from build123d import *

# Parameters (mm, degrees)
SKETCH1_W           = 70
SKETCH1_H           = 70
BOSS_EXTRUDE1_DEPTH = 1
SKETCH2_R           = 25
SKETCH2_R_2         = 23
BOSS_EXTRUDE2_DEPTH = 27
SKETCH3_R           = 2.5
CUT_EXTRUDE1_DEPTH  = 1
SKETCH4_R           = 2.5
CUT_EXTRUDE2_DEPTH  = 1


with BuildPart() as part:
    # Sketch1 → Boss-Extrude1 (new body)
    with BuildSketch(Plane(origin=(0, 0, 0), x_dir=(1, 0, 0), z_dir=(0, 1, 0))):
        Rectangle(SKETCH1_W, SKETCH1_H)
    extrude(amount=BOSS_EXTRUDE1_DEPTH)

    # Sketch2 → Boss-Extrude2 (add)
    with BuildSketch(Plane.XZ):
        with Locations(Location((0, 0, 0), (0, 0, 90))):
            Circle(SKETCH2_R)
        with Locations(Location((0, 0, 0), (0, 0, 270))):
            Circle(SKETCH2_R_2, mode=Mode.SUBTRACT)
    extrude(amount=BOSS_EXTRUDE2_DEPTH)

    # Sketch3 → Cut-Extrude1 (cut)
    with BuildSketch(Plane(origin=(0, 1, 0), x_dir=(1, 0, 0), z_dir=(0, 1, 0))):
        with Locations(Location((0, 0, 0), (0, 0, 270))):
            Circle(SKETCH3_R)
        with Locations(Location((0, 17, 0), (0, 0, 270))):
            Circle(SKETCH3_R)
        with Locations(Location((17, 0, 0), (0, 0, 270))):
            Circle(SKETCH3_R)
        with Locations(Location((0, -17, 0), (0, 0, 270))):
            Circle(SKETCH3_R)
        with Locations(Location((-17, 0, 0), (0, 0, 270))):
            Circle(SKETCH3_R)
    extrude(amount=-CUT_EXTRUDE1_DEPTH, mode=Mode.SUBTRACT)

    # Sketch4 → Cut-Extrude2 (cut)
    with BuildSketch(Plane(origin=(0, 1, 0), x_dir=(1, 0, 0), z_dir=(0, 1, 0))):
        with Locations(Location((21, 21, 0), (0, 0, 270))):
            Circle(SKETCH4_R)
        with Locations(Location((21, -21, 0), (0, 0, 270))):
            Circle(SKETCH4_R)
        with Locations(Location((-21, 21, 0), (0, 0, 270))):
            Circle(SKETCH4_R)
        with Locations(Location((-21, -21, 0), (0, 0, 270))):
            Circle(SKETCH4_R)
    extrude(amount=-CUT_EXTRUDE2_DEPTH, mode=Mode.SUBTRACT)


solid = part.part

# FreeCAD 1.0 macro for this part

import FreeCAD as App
import Part
import Sketcher
from FreeCAD import Vector
Q = App.Units.Quantity

doc = App.newDocument("Part")
body = doc.addObject("PartDesign::Body", "Body")

# Sketch on XZ plane
sketch1 = doc.addObject("Sketcher::SketchObject", "Sketch")
body.addObject(sketch1)
sketch1.AttachmentSupport = (doc.XZ_Plane, [""])
sketch1.MapMode = "FlatFace"
sketch1.addGeometry([
    Part.LineSegment(Vector(-35, -35, 0), Vector(-35, 35, 0)),
    Part.LineSegment(Vector(-35, 35, 0), Vector(35, 35, 0)),
    Part.LineSegment(Vector(35, 35, 0), Vector(35, -35, 0)),
    Part.LineSegment(Vector(35, -35, 0), Vector(-35, -35, 0)),
], False)
sketch1.addConstraint([
    Sketcher.Constraint("Coincident", 0, 2, 1, 1),
    Sketcher.Constraint("Coincident", 1, 2, 2, 1),
    Sketcher.Constraint("Coincident", 2, 2, 3, 1),
    Sketcher.Constraint("Coincident", 3, 2, 0, 1),
    Sketcher.Constraint("Vertical", 0),
    Sketcher.Constraint("Horizontal", 1),
    Sketcher.Constraint("Vertical", 2),
    Sketcher.Constraint("Horizontal", 3),
    Sketcher.Constraint("Symmetric", 0, 2, 2, 2, -1, 1),
    Sketcher.Constraint("Equal", 3, 0),
    Sketcher.Constraint("DistanceX", 1, 1, 1, 2, Q("70 mm")),
])
pad1 = doc.addObject("PartDesign::Pad", "Pad")
body.addObject(pad1)
pad1.Profile = sketch1
pad1.Length = 1
pad1.Reversed = True

# Sketch on XZ plane
sketch2 = doc.addObject("Sketcher::SketchObject", "Sketch001")
body.addObject(sketch2)
sketch2.AttachmentSupport = (doc.XZ_Plane, [""])
sketch2.MapMode = "FlatFace"
sketch2.addGeometry([
    Part.Circle(Vector(0, 0, 0), Vector(0, 0, 1), 25),
    Part.Circle(Vector(0, 0, 0), Vector(0, 0, 1), 23),
], False)
sketch2.addConstraint([
    Sketcher.Constraint("Coincident", 0, 3, -1, 1),
    Sketcher.Constraint("Coincident", 1, 3, -1, 1),
    Sketcher.Constraint("Diameter", 0, Q("50 mm")),
    Sketcher.Constraint("Diameter", 1, Q("46 mm")),
])
pad2 = doc.addObject("PartDesign::Pad", "Pad001")
body.addObject(pad2)
pad2.Profile = sketch2
pad2.Length = 27

# Sketch on XZ plane
sketch3 = doc.addObject("Sketcher::SketchObject", "Sketch002")
body.addObject(sketch3)
sketch3.AttachmentSupport = (doc.XZ_Plane, [""])
sketch3.MapMode = "FlatFace"
sketch3.AttachmentOffset = App.Placement(Vector(0, 0, -1), App.Rotation())
sketch3.addGeometry([
    Part.Circle(Vector(0, 0, 0), Vector(0, 0, 1), 2.5),  # 0
    Part.Circle(Vector(0, -17, 0), Vector(0, 0, 1), 2.5),  # 1
    Part.Circle(Vector(17, 0, 0), Vector(0, 0, 1), 2.5),  # 2
    Part.Circle(Vector(0, 17, 0), Vector(0, 0, 1), 2.5),  # 3
    Part.Circle(Vector(-17, 0, 0), Vector(0, 0, 1), 2.5),  # 4
], False)
sketch3.addConstraint([
    Sketcher.Constraint("Coincident", 0, 3, -1, 1),
    Sketcher.Constraint("Equal", 0, 1),
    Sketcher.Constraint("Equal", 1, 2),
    Sketcher.Constraint("Equal", 2, 3),
    Sketcher.Constraint("Equal", 3, 4),
    Sketcher.Constraint("Symmetric", 1, 3, 3, 3, -1, 1),
    Sketcher.Constraint("Symmetric", 2, 3, 4, 3, -1, 1),
    Sketcher.Constraint("PointOnObject", 1, 3, -2),
    Sketcher.Constraint("PointOnObject", 2, 3, -1),
    Sketcher.Constraint("Diameter", 0, Q("5 mm")),
    Sketcher.Constraint("DistanceY", 1, 3, -1, 1, Q("17 mm")),
    Sketcher.Constraint("DistanceX", -1, 1, 2, 3, Q("17 mm")),
])
pocket1 = doc.addObject("PartDesign::Pocket", "Pocket")
body.addObject(pocket1)
pocket1.Profile = sketch3
pocket1.Length = 1
pocket1.Reversed = True

# Sketch on XZ plane
sketch4 = doc.addObject("Sketcher::SketchObject", "Sketch003")
body.addObject(sketch4)
sketch4.AttachmentSupport = (doc.XZ_Plane, [""])
sketch4.MapMode = "FlatFace"
sketch4.AttachmentOffset = App.Placement(Vector(0, 0, -1), App.Rotation())
sketch4.addGeometry([
    Part.Circle(Vector(21, -21, 0), Vector(0, 0, 1), 2.5),
    Part.Circle(Vector(21, 21, 0), Vector(0, 0, 1), 2.5),
    Part.Circle(Vector(-21, -21, 0), Vector(0, 0, 1), 2.5),
    Part.Circle(Vector(-21, 21, 0), Vector(0, 0, 1), 2.5),
], False)
sketch4.addConstraint([
    Sketcher.Constraint("Equal", 0, 1),
    Sketcher.Constraint("Equal", 1, 2),
    Sketcher.Constraint("Equal", 2, 3),
    Sketcher.Constraint("Symmetric", 1, 3, 2, 3, -1, 1),
    Sketcher.Constraint("Symmetric", 0, 3, 3, 3, -1, 1),
    Sketcher.Constraint("Symmetric", 0, 3, 2, 3, -2),
    Sketcher.Constraint("Diameter", 0, Q("5 mm")),
    Sketcher.Constraint("DistanceX", -1, 1, 0, 3, Q("21 mm")),
    Sketcher.Constraint("DistanceY", 0, 3, -1, 1, Q("21 mm")),
])
pocket2 = doc.addObject("PartDesign::Pocket", "Pocket001")
body.addObject(pocket2)
pocket2.Profile = sketch4
pocket2.Length = 1
pocket2.Reversed = True

doc.recompute()
